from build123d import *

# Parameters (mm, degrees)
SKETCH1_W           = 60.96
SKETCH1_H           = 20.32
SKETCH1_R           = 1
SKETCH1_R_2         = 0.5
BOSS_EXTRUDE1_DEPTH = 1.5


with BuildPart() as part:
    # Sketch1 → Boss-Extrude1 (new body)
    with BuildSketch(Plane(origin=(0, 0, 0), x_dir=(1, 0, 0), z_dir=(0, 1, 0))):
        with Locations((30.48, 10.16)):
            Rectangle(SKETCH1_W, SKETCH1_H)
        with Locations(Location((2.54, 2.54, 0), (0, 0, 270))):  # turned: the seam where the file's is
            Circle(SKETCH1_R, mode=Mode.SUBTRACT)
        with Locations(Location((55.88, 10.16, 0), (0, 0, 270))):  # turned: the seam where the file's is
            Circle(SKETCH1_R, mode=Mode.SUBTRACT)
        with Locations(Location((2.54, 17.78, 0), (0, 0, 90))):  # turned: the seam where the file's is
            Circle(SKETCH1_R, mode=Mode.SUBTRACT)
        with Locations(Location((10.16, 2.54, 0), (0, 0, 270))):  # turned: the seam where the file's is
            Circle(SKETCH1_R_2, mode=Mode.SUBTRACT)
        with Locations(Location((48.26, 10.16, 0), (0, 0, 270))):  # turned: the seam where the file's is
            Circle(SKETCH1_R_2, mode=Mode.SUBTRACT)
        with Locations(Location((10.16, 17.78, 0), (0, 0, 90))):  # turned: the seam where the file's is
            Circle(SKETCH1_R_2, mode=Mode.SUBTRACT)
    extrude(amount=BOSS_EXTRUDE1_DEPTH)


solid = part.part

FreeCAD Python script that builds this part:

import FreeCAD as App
import Part
import Sketcher

V = App.Vector

doc = App.newDocument("Part")
body = doc.addObject("PartDesign::Body", "Body")

# Sketch on XZ plane
sketch1 = doc.addObject("Sketcher::SketchObject", "Sketch")
body.addObject(sketch1)
sketch1.AttachmentSupport = (doc.XZ_Plane, [""])
sketch1.MapMode = "FlatFace"
sketch1.addGeometry(Part.LineSegment(V(0, -20.3, 0), V(0, 0, 0)), False)
sketch1.addGeometry(Part.LineSegment(V(0, 0, 0), V(61, 0, 0)), False)
sketch1.addGeometry(Part.LineSegment(V(61, 0, 0), V(61, -20.3, 0)), False)
sketch1.addGeometry(Part.LineSegment(V(61, -20.3, 0), V(0, -20.3, 0)), False)
sketch1.addGeometry(Part.Circle(V(2.5, -2.5, 0), V(0, 0, 1), 1), False)
sketch1.addGeometry(Part.Circle(V(10.2, -2.5, 0), V(0, 0, 1), 0.5), False)
sketch1.addGeometry(Part.Circle(V(2.5, -17.8, 0), V(0, 0, 1), 1), False)
sketch1.addGeometry(Part.Circle(V(10.2, -17.8, 0), V(0, 0, 1), 0.5), False)
sketch1.addGeometry(Part.Circle(V(48.3, -10.2, 0), V(0, 0, 1), 0.5), False)
sketch1.addGeometry(Part.Circle(V(55.9, -10.2, 0), V(0, 0, 1), 1), False)
sketch1.addConstraint(Sketcher.Constraint("Coincident", 0, 2, 1, 1))
sketch1.addConstraint(Sketcher.Constraint("Coincident", 1, 2, 2, 1))
sketch1.addConstraint(Sketcher.Constraint("Coincident", 2, 2, 3, 1))
sketch1.addConstraint(Sketcher.Constraint("Coincident", 3, 2, 0, 1))
sketch1.addConstraint(Sketcher.Constraint("Vertical", 0))
sketch1.addConstraint(Sketcher.Constraint("Horizontal", 1))
sketch1.addConstraint(Sketcher.Constraint("Vertical", 2))
sketch1.addConstraint(Sketcher.Constraint("Horizontal", 3))
sketch1.addConstraint(Sketcher.Constraint("Coincident", 0, 2, -1, 1))
sketch1.addConstraint(Sketcher.Constraint("Equal", 4, 6))
sketch1.addConstraint(Sketcher.Constraint("Equal", 5, 7))
sketch1.addConstraint(Sketcher.Constraint("Equal", 7, 8))
sketch1.addConstraint(Sketcher.Constraint("Equal", 6, 9))
sketch1.addConstraint(Sketcher.Constraint("Horizontal", 4, 3, 5, 3))
sketch1.addConstraint(Sketcher.Constraint("Horizontal", 6, 3, 7, 3))
sketch1.addConstraint(Sketcher.Constraint("Horizontal", 8, 3, 9, 3))
sketch1.addConstraint(Sketcher.Constraint("Vertical", 4, 3, 6, 3))
sketch1.addConstraint(Sketcher.Constraint("Vertical", 5, 3, 7, 3))
sketch1.addConstraint(Sketcher.Constraint("Diameter", 4, 2.0))
sketch1.addConstraint(Sketcher.Constraint("Diameter", 5, 1.0))
sketch1.addConstraint(Sketcher.Constraint("DistanceX", 1, 1, 1, 2, 60.96))
sketch1.addConstraint(Sketcher.Constraint("DistanceY", 0, 1, 0, 2, 20.32))
sketch1.addConstraint(Sketcher.Constraint("DistanceX", 5, 3, 8, 3, 38.1))
sketch1.addConstraint(Sketcher.Constraint("DistanceX", 8, 3, 1, 2, 12.7))
sketch1.addConstraint(Sketcher.Constraint("DistanceX", -1, 1, 4, 3, 2.54))
sketch1.addConstraint(Sketcher.Constraint("DistanceY", 4, 3, -1, 1, 2.54))
sketch1.addConstraint(Sketcher.Constraint("DistanceY", 6, 3, -1, 1, 17.78))
sketch1.addConstraint(Sketcher.Constraint("DistanceY", 8, 3, -1, 1, 10.16))
sketch1.addConstraint(Sketcher.Constraint("DistanceX", -1, 1, 9, 3, 55.88))
pad1 = doc.addObject("PartDesign::Pad", "Pad")
body.addObject(pad1)
pad1.Profile = sketch1
pad1.Length = 1.5
pad1.Reversed = True

doc.recompute()
